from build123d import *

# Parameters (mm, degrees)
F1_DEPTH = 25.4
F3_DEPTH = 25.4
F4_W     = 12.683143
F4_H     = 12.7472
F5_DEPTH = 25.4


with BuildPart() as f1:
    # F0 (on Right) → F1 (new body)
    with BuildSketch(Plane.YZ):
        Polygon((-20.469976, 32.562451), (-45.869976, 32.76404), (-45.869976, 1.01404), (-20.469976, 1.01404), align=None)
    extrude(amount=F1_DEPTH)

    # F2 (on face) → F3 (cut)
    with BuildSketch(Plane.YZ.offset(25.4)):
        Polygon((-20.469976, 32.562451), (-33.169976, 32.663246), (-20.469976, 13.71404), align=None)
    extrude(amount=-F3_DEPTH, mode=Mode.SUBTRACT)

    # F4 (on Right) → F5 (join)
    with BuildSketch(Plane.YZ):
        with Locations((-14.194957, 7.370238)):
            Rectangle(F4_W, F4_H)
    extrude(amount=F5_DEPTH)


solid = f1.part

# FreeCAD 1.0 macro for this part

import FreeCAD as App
import Part
import Sketcher

V = App.Vector
Q = App.Units.Quantity

doc = App.newDocument("Part")
body = doc.addObject("PartDesign::Body", "Body")

sketch1 = doc.addObject("Sketcher::SketchObject", "Sketch")
body.addObject(sketch1)
sketch1.AttachmentSupport = (doc.YZ_Plane, [""])
sketch1.MapMode = "FlatFace"
sketch1.addGeometry([
    Part.LineSegment(V(-20.469976, 32.562451, 0), V(-45.869976, 32.76404, 0)),
    Part.LineSegment(V(-45.869976, 32.76404, 0), V(-45.869976, 1.01404, 0)),
    Part.LineSegment(V(-45.869976, 1.01404, 0), V(-20.469976, 1.01404, 0)),
    Part.LineSegment(V(-20.469976, 1.01404, 0), V(-20.469976, 32.562451, 0)),
], False)
sketch1.addConstraint([
    Sketcher.Constraint("Coincident", 0, 2, 1, 1),
    Sketcher.Constraint("Coincident", 1, 2, 2, 1),
    Sketcher.Constraint("Coincident", 2, 2, 3, 1),
    Sketcher.Constraint("Coincident", 3, 2, 0, 1),
    Sketcher.Constraint("Vertical", 1),
    Sketcher.Constraint("Horizontal", 2),
    Sketcher.Constraint("Vertical", 3),
    Sketcher.Constraint("DistanceX", 2, 1, 2, 2, Q("1 in")),
    Sketcher.Constraint("DistanceY", 1, 2, 1, 1, Q("1.25 in")),
    Sketcher.Constraint("Distance", 0, 25.4008),
    Sketcher.Constraint("DistanceY", -1, 1, 0, 2, 32.76404),
    Sketcher.Constraint("DistanceX", 0, 2, -1, 1, 45.869976),
])
pad1 = doc.addObject("PartDesign::Pad", "Pad")
body.addObject(pad1)
pad1.Profile = sketch1
pad1.Length = Q("1 in")

sketch2 = doc.addObject("Sketcher::SketchObject", "Sketch001")
body.addObject(sketch2)
sketch2.AttachmentSupport = (doc.YZ_Plane, [""])
sketch2.MapMode = "FlatFace"
sketch2.AttachmentOffset = App.Placement(V(0, 0, 1 * 25.4), App.Rotation())
sketch2.addGeometry([
    Part.LineSegment(V(-20.469976, 32.562451, 0), V(-33.169976, 32.663246, 0)),
    Part.LineSegment(V(-33.169976, 32.663246, 0), V(-20.469976, 13.71404, 0)),
    Part.LineSegment(V(-20.469976, 13.71404, 0), V(-20.469976, 32.562451, 0)),
], False)
sketch2.addConstraint([
    Sketcher.Constraint("Coincident", 0, 2, 1, 1),
    Sketcher.Constraint("Coincident", 1, 2, 2, 1),
    Sketcher.Constraint("Coincident", 2, 2, 0, 1),
    Sketcher.Constraint("Vertical", 2),
    Sketcher.Constraint("DistanceX", 0, 2, 1, 2, Q("0.5 in")),
    Sketcher.Constraint("Distance", 0, 12.7004),
    Sketcher.Constraint("DistanceY", 2, 1, 2, 2, 18.848411),
    Sketcher.Constraint("DistanceY", -1, 1, 1, 2, 13.71404),
    Sketcher.Constraint("DistanceX", 0, 2, -1, 1, 33.169976),
])
pocket1 = doc.addObject("PartDesign::Pocket", "Pocket")
body.addObject(pocket1)
pocket1.Profile = sketch2
pocket1.Length = Q("1 in")

sketch3 = doc.addObject("Sketcher::SketchObject", "Sketch002")
body.addObject(sketch3)
sketch3.AttachmentSupport = (doc.YZ_Plane, [""])
sketch3.MapMode = "FlatFace"
sketch3.addGeometry([
    Part.LineSegment(V(-21, 14, 0), V(-21, 1, 0)),
    Part.LineSegment(V(-21, 1, 0), V(-8, 1, 0)),
    Part.LineSegment(V(-8, 1, 0), V(-8, 14, 0)),
    Part.LineSegment(V(-8, 14, 0), V(-21, 14, 0)),
], False)
sketch3.addConstraint([
    Sketcher.Constraint("Coincident", 0, 2, 1, 1),
    Sketcher.Constraint("Coincident", 1, 2, 2, 1),
    Sketcher.Constraint("Coincident", 2, 2, 3, 1),
    Sketcher.Constraint("Coincident", 3, 2, 0, 1),
    Sketcher.Constraint("Vertical", 0),
    Sketcher.Constraint("Horizontal", 1),
    Sketcher.Constraint("Vertical", 2),
    Sketcher.Constraint("Horizontal", 3),
    Sketcher.Constraint("DistanceY", 0, 2, 0, 1, 12.7472),
    Sketcher.Constraint("DistanceX", 1, 1, 1, 2, 12.683143),
    Sketcher.Constraint("DistanceX", 0, 2, -1, 1, 20.536528),
    Sketcher.Constraint("DistanceY", -1, 1, 0, 2, 0.996638),
])
pad2 = doc.addObject("PartDesign::Pad", "Pad001")
body.addObject(pad2)
pad2.Profile = sketch3
pad2.Length = Q("1 in")

doc.recompute()
